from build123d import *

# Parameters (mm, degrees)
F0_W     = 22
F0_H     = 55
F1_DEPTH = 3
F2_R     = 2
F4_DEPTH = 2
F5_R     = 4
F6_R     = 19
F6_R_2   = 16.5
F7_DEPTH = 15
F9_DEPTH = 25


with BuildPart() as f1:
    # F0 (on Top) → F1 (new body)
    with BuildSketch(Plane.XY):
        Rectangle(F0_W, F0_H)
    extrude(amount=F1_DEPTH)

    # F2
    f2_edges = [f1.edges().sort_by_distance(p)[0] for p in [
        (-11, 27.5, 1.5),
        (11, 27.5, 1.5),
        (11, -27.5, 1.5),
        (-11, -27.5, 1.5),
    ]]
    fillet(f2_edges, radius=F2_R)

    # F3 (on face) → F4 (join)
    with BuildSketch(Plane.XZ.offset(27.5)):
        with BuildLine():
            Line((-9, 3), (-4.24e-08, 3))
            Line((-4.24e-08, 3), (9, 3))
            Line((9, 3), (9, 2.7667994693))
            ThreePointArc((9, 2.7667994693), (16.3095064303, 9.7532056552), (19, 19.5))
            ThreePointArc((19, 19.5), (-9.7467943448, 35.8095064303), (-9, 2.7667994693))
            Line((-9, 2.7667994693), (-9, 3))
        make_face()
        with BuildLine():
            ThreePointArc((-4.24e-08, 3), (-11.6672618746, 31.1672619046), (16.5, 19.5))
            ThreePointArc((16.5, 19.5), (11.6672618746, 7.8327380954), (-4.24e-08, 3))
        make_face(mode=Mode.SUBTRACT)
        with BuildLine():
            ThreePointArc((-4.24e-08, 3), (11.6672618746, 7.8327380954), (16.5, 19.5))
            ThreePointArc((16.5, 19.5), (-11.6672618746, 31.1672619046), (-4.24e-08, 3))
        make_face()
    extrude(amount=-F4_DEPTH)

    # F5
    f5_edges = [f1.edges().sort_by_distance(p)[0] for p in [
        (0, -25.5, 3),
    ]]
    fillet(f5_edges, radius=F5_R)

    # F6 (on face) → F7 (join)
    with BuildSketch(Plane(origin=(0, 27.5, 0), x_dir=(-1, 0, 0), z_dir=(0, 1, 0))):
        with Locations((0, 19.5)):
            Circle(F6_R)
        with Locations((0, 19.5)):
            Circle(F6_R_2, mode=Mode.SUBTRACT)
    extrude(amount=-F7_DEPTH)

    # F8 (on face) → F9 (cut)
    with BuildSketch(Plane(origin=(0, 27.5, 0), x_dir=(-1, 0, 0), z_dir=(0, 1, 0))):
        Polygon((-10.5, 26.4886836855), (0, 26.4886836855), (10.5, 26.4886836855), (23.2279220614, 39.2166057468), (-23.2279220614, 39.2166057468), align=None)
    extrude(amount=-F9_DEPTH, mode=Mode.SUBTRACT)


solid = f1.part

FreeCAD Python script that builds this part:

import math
import FreeCAD as App
import Part
import Sketcher

V = App.Vector


def edges_at(feature, points):
    """Names of the edges that pass closest to the given points."""
    edges = feature.Shape.Edges
    near = lambda p: min(range(len(edges)), key=lambda i: edges[i].distToShape(Part.Vertex(*p))[0])
    return sorted({f"Edge{near(p) + 1}" for p in points})


def add_polygon(sketch, points):
    """Adds a closed chain of lines whose ends are joined by coincident constraints."""
    first, n = sketch.GeometryCount, len(points)
    for a, b in zip(points, points[1:] + points[:1]):
        sketch.addGeometry(Part.LineSegment(App.Vector(*a, 0), App.Vector(*b, 0)), False)
    for i in range(n):
        sketch.addConstraint(Sketcher.Constraint("Coincident", first + i, 2, first + (i + 1) % n, 1))

doc = App.newDocument("Part")
body = doc.addObject("PartDesign::Body", "Body")

# Sketch on XY plane
sketch1 = doc.addObject("Sketcher::SketchObject", "Sketch")
body.addObject(sketch1)
sketch1.AttachmentSupport = (doc.XY_Plane, [""])
sketch1.MapMode = "FlatFace"
add_polygon(sketch1, [(-11, 28), (-11, -28), (11, -28), (11, 28)])  # lines 0-3
sketch1.addConstraint([
    Sketcher.Constraint("Vertical", 0),
    Sketcher.Constraint("Horizontal", 1),
    Sketcher.Constraint("Vertical", 2),
    Sketcher.Constraint("Horizontal", 3),
    Sketcher.Constraint("Symmetric", 0, 2, 2, 2, -1, 1),
    Sketcher.Constraint("DistanceX", 1, 1, 1, 2, 22.0),
    Sketcher.Constraint("DistanceY", 0, 2, 0, 1, 55.0),
])
pad1 = doc.addObject("PartDesign::Pad", "Pad")
body.addObject(pad1)
pad1.Profile = sketch1
pad1.Length = 3
doc.recompute()

fillet = doc.addObject("PartDesign::Fillet", "Fillet")
body.addObject(fillet)
fillet.Base = (pad1, edges_at(pad1, [
    (-11, 27.5, 1.5),
    (11, 27.5, 1.5),
    (11, -27.5, 1.5),
    (-11, -27.5, 1.5),
]))
fillet.Radius = 2

# Sketch on XZ plane
sketch2 = doc.addObject("Sketcher::SketchObject", "Sketch001")
body.addObject(sketch2)
sketch2.AttachmentSupport = (doc.XZ_Plane, [""])
sketch2.MapMode = "FlatFace"
sketch2.AttachmentOffset = App.Placement(V(0, 0, 27.5), App.Rotation())
sketch2.addGeometry([
    Part.ArcOfCircle(Part.Circle(V(0, 19.5, 0), V(0, 0, 1), 19), math.radians(0), math.radians(242)),  # 0
    Part.LineSegment(V(-9, 2.77, 0), V(-9, 3, 0)),  # 1
    Part.LineSegment(V(-9, 3, 0), V(9, 3, 0)),  # 2
    Part.LineSegment(V(9, 3, 0), V(9, 2.77, 0)),  # 3
    Part.ArcOfCircle(Part.Circle(V(0, 19.5, 0), V(0, 0, 1), 19), math.radians(-62), math.radians(0)),  # 4
], False)
sketch2.addConstraint([
    Sketcher.Constraint("Coincident", 0, 2, 1, 1),
    Sketcher.Constraint("Coincident", 1, 2, 2, 1),
    Sketcher.Constraint("Coincident", 2, 2, 3, 1),
    Sketcher.Constraint("Coincident", 3, 2, 4, 1),
    Sketcher.Constraint("Tangent", 4, 2, 0, 1),
    Sketcher.Constraint("Vertical", 1),
    Sketcher.Constraint("Horizontal", 2),
    Sketcher.Constraint("Vertical", 3),
    Sketcher.Constraint("Equal", 0, 4),
    Sketcher.Constraint("Symmetric", 0, 2, 3, 2, -2),
    Sketcher.Constraint("Horizontal", 0, 3, 4, 2),
    Sketcher.Constraint("Radius", 0, 19.0),
    Sketcher.Constraint("DistanceX", 2, 1, 2, 2, 18.0),
    Sketcher.Constraint("DistanceY", -1, 1, 1, 2, 3.0),
    Sketcher.Constraint("DistanceY", -1, 1, 0, 3, 19.5),
])
pad2 = doc.addObject("PartDesign::Pad", "Pad001")
body.addObject(pad2)
pad2.Profile = sketch2
pad2.Length = 2
pad2.Reversed = True
doc.recompute()

fillet2 = doc.addObject("PartDesign::Fillet", "Fillet001")
body.addObject(fillet2)
fillet2.Base = (pad2, edges_at(pad2, [(0, -25.5, 3)]))
fillet2.Radius = 4

# Sketch on XZ plane
sketch3 = doc.addObject("Sketcher::SketchObject", "Sketch002")
body.addObject(sketch3)
sketch3.AttachmentSupport = (doc.XZ_Plane, [""])
sketch3.MapMode = "FlatFace"
sketch3.AttachmentOffset = App.Placement(V(0, 0, -27.5), App.Rotation())
sketch3.addGeometry([
    Part.Circle(V(0, 20, 0), V(0, 0, 1), 19),
    Part.Circle(V(0, 20, 0), V(0, 0, 1), 16),
], False)
sketch3.addConstraint([
    Sketcher.Constraint("Coincident", 1, 3, 0, 3),
    Sketcher.Constraint("PointOnObject", 0, 3, -2),
    Sketcher.Constraint("Diameter", 0, 38.0),
    Sketcher.Constraint("Diameter", 1, 33.0),
    Sketcher.Constraint("DistanceY", -1, 1, 0, 3, 19.5),
])
pad3 = doc.addObject("PartDesign::Pad", "Pad002")
body.addObject(pad3)
pad3.Profile = sketch3
pad3.Length = 15

# Sketch on XZ plane
sketch4 = doc.addObject("Sketcher::SketchObject", "Sketch003")
body.addObject(sketch4)
sketch4.AttachmentSupport = (doc.XZ_Plane, [""])
sketch4.MapMode = "FlatFace"
sketch4.AttachmentOffset = App.Placement(V(0, 0, -27.5), App.Rotation())
add_polygon(sketch4, [(10, 26), (-10, 26), (-23, 39), (23, 39)])  # lines 0-3
sketch4.addConstraint([
    Sketcher.Constraint("Horizontal", 0),
    Sketcher.Constraint("Horizontal", 2),
    Sketcher.Constraint("Perpendicular", 1, 3),
    Sketcher.Constraint("Equal", 1, 3),
    Sketcher.Constraint("DistanceX", 0, 2, 0, 1, 21.0),
    Sketcher.Constraint("Distance", 1, 18.0),
    Sketcher.Constraint("DistanceX", 0, 2, -1, 1, 10.5),
    Sketcher.Constraint("DistanceY", -1, 1, 0, 2, 26.488684),
])
pocket1 = doc.addObject("PartDesign::Pocket", "Pocket")
body.addObject(pocket1)
pocket1.Profile = sketch4
pocket1.Length = 25
pocket1.Reversed = True

doc.recompute()
